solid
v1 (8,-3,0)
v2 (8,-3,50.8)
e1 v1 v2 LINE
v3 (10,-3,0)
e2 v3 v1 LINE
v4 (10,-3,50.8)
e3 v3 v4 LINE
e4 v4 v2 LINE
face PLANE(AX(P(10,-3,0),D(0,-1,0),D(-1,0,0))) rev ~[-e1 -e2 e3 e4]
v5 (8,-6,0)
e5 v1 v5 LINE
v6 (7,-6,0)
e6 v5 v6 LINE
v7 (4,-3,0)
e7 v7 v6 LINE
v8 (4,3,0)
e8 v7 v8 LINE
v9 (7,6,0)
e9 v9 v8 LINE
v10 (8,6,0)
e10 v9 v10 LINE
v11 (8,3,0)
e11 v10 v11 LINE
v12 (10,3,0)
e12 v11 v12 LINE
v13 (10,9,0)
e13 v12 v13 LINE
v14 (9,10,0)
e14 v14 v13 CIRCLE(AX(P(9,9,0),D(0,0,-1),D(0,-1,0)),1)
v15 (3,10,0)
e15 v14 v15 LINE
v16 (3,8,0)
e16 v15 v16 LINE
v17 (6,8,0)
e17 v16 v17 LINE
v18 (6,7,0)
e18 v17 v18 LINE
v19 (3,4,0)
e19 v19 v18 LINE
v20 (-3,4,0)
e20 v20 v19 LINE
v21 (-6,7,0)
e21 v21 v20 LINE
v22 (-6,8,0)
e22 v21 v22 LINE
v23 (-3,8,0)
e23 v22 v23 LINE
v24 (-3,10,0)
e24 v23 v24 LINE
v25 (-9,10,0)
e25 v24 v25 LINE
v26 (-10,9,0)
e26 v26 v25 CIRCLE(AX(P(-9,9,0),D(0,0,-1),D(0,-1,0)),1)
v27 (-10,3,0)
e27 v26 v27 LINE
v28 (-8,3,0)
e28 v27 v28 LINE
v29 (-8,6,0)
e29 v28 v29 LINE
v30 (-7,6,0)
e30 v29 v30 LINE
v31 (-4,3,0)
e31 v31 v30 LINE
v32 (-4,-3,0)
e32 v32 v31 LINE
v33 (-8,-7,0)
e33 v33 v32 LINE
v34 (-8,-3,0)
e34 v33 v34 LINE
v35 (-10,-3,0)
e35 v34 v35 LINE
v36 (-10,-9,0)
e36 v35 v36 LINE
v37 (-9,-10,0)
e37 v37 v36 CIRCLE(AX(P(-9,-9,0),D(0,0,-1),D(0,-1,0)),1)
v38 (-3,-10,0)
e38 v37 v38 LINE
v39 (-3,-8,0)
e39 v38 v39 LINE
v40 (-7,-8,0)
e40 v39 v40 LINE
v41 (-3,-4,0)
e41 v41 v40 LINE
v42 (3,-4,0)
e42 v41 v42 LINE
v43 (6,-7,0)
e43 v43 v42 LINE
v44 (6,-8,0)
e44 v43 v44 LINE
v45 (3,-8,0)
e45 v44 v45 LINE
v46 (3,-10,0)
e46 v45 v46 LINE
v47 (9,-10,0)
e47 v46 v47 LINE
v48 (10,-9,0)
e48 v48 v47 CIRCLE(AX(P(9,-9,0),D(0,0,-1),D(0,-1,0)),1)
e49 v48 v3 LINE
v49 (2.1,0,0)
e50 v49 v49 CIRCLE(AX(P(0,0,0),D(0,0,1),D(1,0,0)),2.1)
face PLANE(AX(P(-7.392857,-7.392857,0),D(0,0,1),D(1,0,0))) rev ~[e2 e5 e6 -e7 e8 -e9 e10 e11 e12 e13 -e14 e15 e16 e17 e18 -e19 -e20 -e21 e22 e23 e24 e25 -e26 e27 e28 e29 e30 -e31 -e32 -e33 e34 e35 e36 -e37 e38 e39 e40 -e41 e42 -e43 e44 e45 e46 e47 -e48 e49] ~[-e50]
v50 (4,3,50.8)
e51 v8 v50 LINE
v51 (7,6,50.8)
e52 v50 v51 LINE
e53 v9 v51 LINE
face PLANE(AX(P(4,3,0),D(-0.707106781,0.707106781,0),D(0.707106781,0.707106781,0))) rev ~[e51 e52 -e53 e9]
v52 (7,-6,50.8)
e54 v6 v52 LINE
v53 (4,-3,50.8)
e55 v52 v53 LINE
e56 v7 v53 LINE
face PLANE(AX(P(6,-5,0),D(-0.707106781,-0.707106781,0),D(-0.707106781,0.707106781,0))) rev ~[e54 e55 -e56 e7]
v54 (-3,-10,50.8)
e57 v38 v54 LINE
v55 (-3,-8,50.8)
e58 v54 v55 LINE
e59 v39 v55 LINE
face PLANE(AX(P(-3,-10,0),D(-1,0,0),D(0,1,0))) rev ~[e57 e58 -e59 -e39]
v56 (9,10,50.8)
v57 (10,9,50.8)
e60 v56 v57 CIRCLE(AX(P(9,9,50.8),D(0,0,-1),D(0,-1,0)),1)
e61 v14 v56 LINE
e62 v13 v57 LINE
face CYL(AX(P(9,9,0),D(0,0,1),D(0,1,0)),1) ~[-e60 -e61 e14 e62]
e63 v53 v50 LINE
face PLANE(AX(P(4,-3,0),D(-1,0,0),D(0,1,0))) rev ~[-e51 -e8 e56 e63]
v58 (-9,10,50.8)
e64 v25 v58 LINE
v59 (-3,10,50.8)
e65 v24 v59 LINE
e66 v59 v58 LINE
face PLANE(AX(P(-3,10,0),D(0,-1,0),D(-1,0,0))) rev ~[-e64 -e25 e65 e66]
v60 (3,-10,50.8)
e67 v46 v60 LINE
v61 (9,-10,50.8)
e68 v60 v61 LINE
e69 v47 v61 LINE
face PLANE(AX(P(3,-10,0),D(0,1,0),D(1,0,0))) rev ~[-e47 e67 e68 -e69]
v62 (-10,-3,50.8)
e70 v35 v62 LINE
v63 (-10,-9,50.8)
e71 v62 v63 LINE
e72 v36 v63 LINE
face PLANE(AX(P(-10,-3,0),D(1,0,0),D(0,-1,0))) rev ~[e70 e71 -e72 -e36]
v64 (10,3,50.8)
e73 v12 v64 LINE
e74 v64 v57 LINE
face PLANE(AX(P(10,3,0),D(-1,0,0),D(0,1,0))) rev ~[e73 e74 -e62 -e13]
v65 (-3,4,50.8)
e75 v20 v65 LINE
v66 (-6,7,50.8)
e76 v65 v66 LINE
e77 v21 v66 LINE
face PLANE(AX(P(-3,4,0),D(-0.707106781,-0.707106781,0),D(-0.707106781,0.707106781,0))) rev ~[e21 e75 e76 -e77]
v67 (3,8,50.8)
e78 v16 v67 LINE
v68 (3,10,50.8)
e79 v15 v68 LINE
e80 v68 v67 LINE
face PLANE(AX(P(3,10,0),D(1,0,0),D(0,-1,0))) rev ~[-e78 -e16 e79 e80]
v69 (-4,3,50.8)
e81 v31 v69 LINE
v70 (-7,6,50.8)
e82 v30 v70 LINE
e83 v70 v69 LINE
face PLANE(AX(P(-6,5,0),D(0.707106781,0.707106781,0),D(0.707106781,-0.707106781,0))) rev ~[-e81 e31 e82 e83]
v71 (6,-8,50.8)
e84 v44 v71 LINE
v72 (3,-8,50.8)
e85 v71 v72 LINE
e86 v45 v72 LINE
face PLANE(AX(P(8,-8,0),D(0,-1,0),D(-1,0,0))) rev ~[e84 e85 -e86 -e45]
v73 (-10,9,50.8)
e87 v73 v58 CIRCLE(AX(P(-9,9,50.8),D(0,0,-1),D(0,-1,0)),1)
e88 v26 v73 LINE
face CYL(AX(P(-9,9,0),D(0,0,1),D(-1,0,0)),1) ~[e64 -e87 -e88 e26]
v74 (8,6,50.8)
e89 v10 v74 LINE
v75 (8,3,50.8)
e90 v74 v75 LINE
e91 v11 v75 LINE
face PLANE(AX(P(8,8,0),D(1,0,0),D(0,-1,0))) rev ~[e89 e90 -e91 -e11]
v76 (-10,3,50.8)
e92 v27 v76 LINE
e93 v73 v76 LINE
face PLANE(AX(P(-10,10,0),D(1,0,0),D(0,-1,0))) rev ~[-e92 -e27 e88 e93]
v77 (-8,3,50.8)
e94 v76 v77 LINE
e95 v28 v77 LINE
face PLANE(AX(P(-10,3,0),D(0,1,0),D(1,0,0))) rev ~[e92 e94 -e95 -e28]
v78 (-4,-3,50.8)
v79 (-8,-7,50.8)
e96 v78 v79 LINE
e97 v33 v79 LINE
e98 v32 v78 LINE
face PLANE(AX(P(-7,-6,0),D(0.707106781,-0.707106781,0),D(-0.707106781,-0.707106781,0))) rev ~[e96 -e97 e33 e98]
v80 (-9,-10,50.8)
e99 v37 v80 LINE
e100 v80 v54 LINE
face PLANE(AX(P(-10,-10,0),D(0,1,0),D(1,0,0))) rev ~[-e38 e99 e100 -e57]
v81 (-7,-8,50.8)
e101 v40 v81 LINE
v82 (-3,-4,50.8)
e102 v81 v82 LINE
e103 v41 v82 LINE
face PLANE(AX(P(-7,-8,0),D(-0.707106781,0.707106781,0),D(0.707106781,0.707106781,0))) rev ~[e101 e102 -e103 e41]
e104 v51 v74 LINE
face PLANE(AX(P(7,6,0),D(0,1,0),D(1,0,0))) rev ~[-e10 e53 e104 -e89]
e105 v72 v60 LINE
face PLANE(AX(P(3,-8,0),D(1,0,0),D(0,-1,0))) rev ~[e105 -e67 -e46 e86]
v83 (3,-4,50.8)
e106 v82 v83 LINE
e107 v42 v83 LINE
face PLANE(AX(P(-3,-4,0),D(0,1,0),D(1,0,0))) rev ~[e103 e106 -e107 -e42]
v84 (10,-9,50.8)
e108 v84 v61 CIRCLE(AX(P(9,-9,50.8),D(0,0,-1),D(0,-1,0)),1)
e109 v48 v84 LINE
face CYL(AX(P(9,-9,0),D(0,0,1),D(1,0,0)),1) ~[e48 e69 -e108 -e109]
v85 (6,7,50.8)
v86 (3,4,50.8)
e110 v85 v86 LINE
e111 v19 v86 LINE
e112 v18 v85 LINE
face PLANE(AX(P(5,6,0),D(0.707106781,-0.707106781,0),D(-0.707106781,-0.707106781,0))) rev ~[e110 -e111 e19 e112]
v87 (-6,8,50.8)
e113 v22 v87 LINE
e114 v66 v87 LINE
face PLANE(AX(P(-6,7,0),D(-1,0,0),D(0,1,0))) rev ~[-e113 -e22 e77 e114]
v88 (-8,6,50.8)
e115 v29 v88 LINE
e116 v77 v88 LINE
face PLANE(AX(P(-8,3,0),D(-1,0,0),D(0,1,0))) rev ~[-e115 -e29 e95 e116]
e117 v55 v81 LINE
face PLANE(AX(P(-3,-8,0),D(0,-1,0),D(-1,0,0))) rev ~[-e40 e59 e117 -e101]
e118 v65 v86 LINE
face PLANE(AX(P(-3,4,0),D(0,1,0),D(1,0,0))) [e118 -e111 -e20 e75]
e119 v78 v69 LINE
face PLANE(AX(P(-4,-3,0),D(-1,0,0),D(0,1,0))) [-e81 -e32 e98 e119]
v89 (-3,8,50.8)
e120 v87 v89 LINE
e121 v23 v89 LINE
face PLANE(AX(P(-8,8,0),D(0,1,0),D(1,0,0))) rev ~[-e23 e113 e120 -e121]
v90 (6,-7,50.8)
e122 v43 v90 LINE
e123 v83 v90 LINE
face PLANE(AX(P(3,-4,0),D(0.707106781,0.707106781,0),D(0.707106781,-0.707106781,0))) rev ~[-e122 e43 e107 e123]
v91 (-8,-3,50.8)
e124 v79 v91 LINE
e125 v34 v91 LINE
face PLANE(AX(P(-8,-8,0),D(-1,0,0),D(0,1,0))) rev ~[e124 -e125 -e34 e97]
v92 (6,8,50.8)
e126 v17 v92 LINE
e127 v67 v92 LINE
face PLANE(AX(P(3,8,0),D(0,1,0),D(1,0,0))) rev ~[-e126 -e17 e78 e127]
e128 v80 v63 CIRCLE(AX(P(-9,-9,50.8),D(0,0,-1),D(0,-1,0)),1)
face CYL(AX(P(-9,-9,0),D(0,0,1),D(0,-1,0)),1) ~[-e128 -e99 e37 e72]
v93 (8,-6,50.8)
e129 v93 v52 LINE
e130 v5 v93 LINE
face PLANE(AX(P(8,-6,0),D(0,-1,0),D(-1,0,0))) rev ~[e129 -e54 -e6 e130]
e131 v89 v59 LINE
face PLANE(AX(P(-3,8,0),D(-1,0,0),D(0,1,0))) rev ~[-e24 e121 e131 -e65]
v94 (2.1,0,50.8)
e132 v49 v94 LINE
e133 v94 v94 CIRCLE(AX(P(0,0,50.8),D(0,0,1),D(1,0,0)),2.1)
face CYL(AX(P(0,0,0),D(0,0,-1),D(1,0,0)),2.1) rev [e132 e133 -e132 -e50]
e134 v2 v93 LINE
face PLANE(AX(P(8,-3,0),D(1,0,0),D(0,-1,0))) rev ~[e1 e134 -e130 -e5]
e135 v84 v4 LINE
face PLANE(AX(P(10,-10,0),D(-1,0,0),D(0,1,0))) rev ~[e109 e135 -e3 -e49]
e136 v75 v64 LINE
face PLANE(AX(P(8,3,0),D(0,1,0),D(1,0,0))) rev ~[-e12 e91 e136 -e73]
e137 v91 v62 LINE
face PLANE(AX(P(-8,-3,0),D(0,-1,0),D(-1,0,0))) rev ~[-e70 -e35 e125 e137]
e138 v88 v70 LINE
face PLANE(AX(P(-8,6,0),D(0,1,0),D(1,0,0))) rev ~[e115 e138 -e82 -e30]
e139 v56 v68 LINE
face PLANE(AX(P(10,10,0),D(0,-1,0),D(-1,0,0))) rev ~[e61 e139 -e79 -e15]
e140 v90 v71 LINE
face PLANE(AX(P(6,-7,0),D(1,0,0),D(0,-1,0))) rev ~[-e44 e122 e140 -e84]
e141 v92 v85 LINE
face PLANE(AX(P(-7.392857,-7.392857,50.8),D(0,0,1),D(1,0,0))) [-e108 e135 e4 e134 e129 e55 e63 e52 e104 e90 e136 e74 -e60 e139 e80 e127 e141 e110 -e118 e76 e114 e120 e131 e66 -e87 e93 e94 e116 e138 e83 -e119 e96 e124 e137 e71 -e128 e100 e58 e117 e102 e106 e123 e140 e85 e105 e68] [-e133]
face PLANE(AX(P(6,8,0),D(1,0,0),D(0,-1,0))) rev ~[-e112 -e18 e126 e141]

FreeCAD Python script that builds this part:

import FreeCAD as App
import Part
import Sketcher
Q = App.Units.Quantity


def edges_at(feature, points):
    """Names of the edges that pass closest to the given points."""
    edges = feature.Shape.Edges
    near = lambda p: min(range(len(edges)), key=lambda i: edges[i].distToShape(Part.Vertex(*p))[0])
    return sorted({f"Edge{near(p) + 1}" for p in points})

doc = App.newDocument("Part")
body = doc.addObject("PartDesign::Body", "Body")

sketch1 = doc.addObject("Sketcher::SketchObject", "Sketch")
body.addObject(sketch1)
sketch1.AttachmentSupport = (doc.XY_Plane, [""])
sketch1.MapMode = "FlatFace"
sketch1.addGeometry(Part.LineSegment(App.Vector(-6, 7, 0), App.Vector(-6, 8, 0)), False)
sketch1.addGeometry(Part.LineSegment(App.Vector(-6, 8, 0), App.Vector(-3, 8, 0)), False)
sketch1.addGeometry(Part.LineSegment(App.Vector(-3, 8, 0), App.Vector(-3, 10, 0)), False)
sketch1.addGeometry(Part.LineSegment(App.Vector(-3, 10, 0), App.Vector(-10, 10, 0)), False)
sketch1.addGeometry(Part.LineSegment(App.Vector(-10, 10, 0), App.Vector(-10, 3, 0)), False)
sketch1.addGeometry(Part.LineSegment(App.Vector(-10, 3, 0), App.Vector(-8, 3, 0)), False)
sketch1.addGeometry(Part.LineSegment(App.Vector(-8, 3, 0), App.Vector(-8, 6, 0)), False)
sketch1.addGeometry(Part.LineSegment(App.Vector(-8, 6, 0), App.Vector(-7, 6, 0)), False)
sketch1.addGeometry(Part.LineSegment(App.Vector(-7, 6, 0), App.Vector(-4, 3, 0)), False)
sketch1.addGeometry(Part.LineSegment(App.Vector(-4, 3, 0), App.Vector(-4, -3, 0)), False)
sketch1.addGeometry(Part.LineSegment(App.Vector(-4, -3, 0), App.Vector(-8, -7, 0)), False)
sketch1.addGeometry(Part.LineSegment(App.Vector(-8, -7, 0), App.Vector(-8, -3, 0)), False)
sketch1.addGeometry(Part.LineSegment(App.Vector(-8, -3, 0), App.Vector(-10, -3, 0)), False)
sketch1.addGeometry(Part.LineSegment(App.Vector(-10, -3, 0), App.Vector(-10, -10, 0)), False)
sketch1.addGeometry(Part.LineSegment(App.Vector(-10, -10, 0), App.Vector(-3, -10, 0)), False)
sketch1.addGeometry(Part.LineSegment(App.Vector(-3, -10, 0), App.Vector(-3, -8, 0)), False)
sketch1.addGeometry(Part.LineSegment(App.Vector(-3, -8, 0), App.Vector(-7, -8, 0)), False)
sketch1.addGeometry(Part.LineSegment(App.Vector(-7, -8, 0), App.Vector(-3, -4, 0)), False)
sketch1.addGeometry(Part.LineSegment(App.Vector(-3, -4, 0), App.Vector(3, -4, 0)), False)
sketch1.addGeometry(Part.LineSegment(App.Vector(3, -4, 0), App.Vector(6, -7, 0)), False)
sketch1.addGeometry(Part.LineSegment(App.Vector(6, -7, 0), App.Vector(6, -8, 0)), False)
sketch1.addGeometry(Part.LineSegment(App.Vector(6, -8, 0), App.Vector(3, -8, 0)), False)
sketch1.addGeometry(Part.LineSegment(App.Vector(3, -8, 0), App.Vector(3, -10, 0)), False)
sketch1.addGeometry(Part.LineSegment(App.Vector(3, -10, 0), App.Vector(10, -10, 0)), False)
sketch1.addGeometry(Part.LineSegment(App.Vector(10, -10, 0), App.Vector(10, -3, 0)), False)
sketch1.addGeometry(Part.LineSegment(App.Vector(10, -3, 0), App.Vector(8, -3, 0)), False)
sketch1.addGeometry(Part.LineSegment(App.Vector(8, -3, 0), App.Vector(8, -6, 0)), False)
sketch1.addGeometry(Part.LineSegment(App.Vector(8, -6, 0), App.Vector(7, -6, 0)), False)
sketch1.addGeometry(Part.LineSegment(App.Vector(7, -6, 0), App.Vector(4, -3, 0)), False)
sketch1.addGeometry(Part.LineSegment(App.Vector(4, -3, 0), App.Vector(4, 3, 0)), False)
sketch1.addGeometry(Part.LineSegment(App.Vector(4, 3, 0), App.Vector(7, 6, 0)), False)
sketch1.addGeometry(Part.LineSegment(App.Vector(7, 6, 0), App.Vector(8, 6, 0)), False)
sketch1.addGeometry(Part.LineSegment(App.Vector(8, 6, 0), App.Vector(8, 3, 0)), False)
sketch1.addGeometry(Part.LineSegment(App.Vector(8, 3, 0), App.Vector(10, 3, 0)), False)
sketch1.addGeometry(Part.LineSegment(App.Vector(10, 3, 0), App.Vector(10, 10, 0)), False)
sketch1.addGeometry(Part.LineSegment(App.Vector(10, 10, 0), App.Vector(3, 10, 0)), False)
sketch1.addGeometry(Part.LineSegment(App.Vector(3, 10, 0), App.Vector(3, 8, 0)), False)
sketch1.addGeometry(Part.LineSegment(App.Vector(3, 8, 0), App.Vector(6, 8, 0)), False)
sketch1.addGeometry(Part.LineSegment(App.Vector(6, 8, 0), App.Vector(6, 7, 0)), False)
sketch1.addGeometry(Part.LineSegment(App.Vector(6, 7, 0), App.Vector(3, 4, 0)), False)
sketch1.addGeometry(Part.LineSegment(App.Vector(3, 4, 0), App.Vector(-3, 4, 0)), False)
sketch1.addGeometry(Part.LineSegment(App.Vector(-3, 4, 0), App.Vector(-6, 7, 0)), False)
sketch1.addGeometry(Part.Circle(App.Vector(0, 0, 0), App.Vector(0, 0, 1), 2.1), False)
sketch1.addConstraint(Sketcher.Constraint("Coincident", 0, 2, 1, 1))
sketch1.addConstraint(Sketcher.Constraint("Coincident", 1, 2, 2, 1))
sketch1.addConstraint(Sketcher.Constraint("Coincident", 2, 2, 3, 1))
sketch1.addConstraint(Sketcher.Constraint("Coincident", 3, 2, 4, 1))
sketch1.addConstraint(Sketcher.Constraint("Coincident", 4, 2, 5, 1))
sketch1.addConstraint(Sketcher.Constraint("Coincident", 5, 2, 6, 1))
sketch1.addConstraint(Sketcher.Constraint("Coincident", 6, 2, 7, 1))
sketch1.addConstraint(Sketcher.Constraint("Coincident", 7, 2, 8, 1))
sketch1.addConstraint(Sketcher.Constraint("Coincident", 8, 2, 9, 1))
sketch1.addConstraint(Sketcher.Constraint("Coincident", 9, 2, 10, 1))
sketch1.addConstraint(Sketcher.Constraint("Coincident", 10, 2, 11, 1))
sketch1.addConstraint(Sketcher.Constraint("Coincident", 11, 2, 12, 1))
sketch1.addConstraint(Sketcher.Constraint("Coincident", 12, 2, 13, 1))
sketch1.addConstraint(Sketcher.Constraint("Coincident", 13, 2, 14, 1))
sketch1.addConstraint(Sketcher.Constraint("Coincident", 14, 2, 15, 1))
sketch1.addConstraint(Sketcher.Constraint("Coincident", 15, 2, 16, 1))
sketch1.addConstraint(Sketcher.Constraint("Coincident", 16, 2, 17, 1))
sketch1.addConstraint(Sketcher.Constraint("Coincident", 17, 2, 18, 1))
sketch1.addConstraint(Sketcher.Constraint("Coincident", 18, 2, 19, 1))
sketch1.addConstraint(Sketcher.Constraint("Coincident", 19, 2, 20, 1))
sketch1.addConstraint(Sketcher.Constraint("Coincident", 20, 2, 21, 1))
sketch1.addConstraint(Sketcher.Constraint("Coincident", 21, 2, 22, 1))
sketch1.addConstraint(Sketcher.Constraint("Coincident", 22, 2, 23, 1))
sketch1.addConstraint(Sketcher.Constraint("Coincident", 23, 2, 24, 1))
sketch1.addConstraint(Sketcher.Constraint("Coincident", 24, 2, 25, 1))
sketch1.addConstraint(Sketcher.Constraint("Coincident", 25, 2, 26, 1))
sketch1.addConstraint(Sketcher.Constraint("Coincident", 26, 2, 27, 1))
sketch1.addConstraint(Sketcher.Constraint("Coincident", 27, 2, 28, 1))
sketch1.addConstraint(Sketcher.Constraint("Coincident", 28, 2, 29, 1))
sketch1.addConstraint(Sketcher.Constraint("Coincident", 29, 2, 30, 1))
sketch1.addConstraint(Sketcher.Constraint("Coincident", 30, 2, 31, 1))
sketch1.addConstraint(Sketcher.Constraint("Coincident", 31, 2, 32, 1))
sketch1.addConstraint(Sketcher.Constraint("Coincident", 32, 2, 33, 1))
sketch1.addConstraint(Sketcher.Constraint("Coincident", 33, 2, 34, 1))
sketch1.addConstraint(Sketcher.Constraint("Coincident", 34, 2, 35, 1))
sketch1.addConstraint(Sketcher.Constraint("Coincident", 35, 2, 36, 1))
sketch1.addConstraint(Sketcher.Constraint("Coincident", 36, 2, 37, 1))
sketch1.addConstraint(Sketcher.Constraint("Coincident", 37, 2, 38, 1))
sketch1.addConstraint(Sketcher.Constraint("Coincident", 38, 2, 39, 1))
sketch1.addConstraint(Sketcher.Constraint("Coincident", 39, 2, 40, 1))
sketch1.addConstraint(Sketcher.Constraint("Coincident", 40, 2, 41, 1))
sketch1.addConstraint(Sketcher.Constraint("Coincident", 41, 2, 0, 1))
sketch1.addConstraint(Sketcher.Constraint("Vertical", 0))
sketch1.addConstraint(Sketcher.Constraint("Horizontal", 1))
sketch1.addConstraint(Sketcher.Constraint("Vertical", 2))
sketch1.addConstraint(Sketcher.Constraint("Horizontal", 3))
sketch1.addConstraint(Sketcher.Constraint("Vertical", 4))
sketch1.addConstraint(Sketcher.Constraint("Horizontal", 5))
sketch1.addConstraint(Sketcher.Constraint("Vertical", 6))
sketch1.addConstraint(Sketcher.Constraint("Horizontal", 7))
sketch1.addConstraint(Sketcher.Constraint("Vertical", 9))
sketch1.addConstraint(Sketcher.Constraint("Vertical", 11))
sketch1.addConstraint(Sketcher.Constraint("Horizontal", 12))
sketch1.addConstraint(Sketcher.Constraint("Vertical", 13))
sketch1.addConstraint(Sketcher.Constraint("Horizontal", 14))
sketch1.addConstraint(Sketcher.Constraint("Vertical", 15))
sketch1.addConstraint(Sketcher.Constraint("Horizontal", 16))
sketch1.addConstraint(Sketcher.Constraint("Horizontal", 18))
sketch1.addConstraint(Sketcher.Constraint("Vertical", 20))
sketch1.addConstraint(Sketcher.Constraint("Horizontal", 21))
sketch1.addConstraint(Sketcher.Constraint("Vertical", 22))
sketch1.addConstraint(Sketcher.Constraint("Horizontal", 23))
sketch1.addConstraint(Sketcher.Constraint("Vertical", 24))
sketch1.addConstraint(Sketcher.Constraint("Horizontal", 25))
sketch1.addConstraint(Sketcher.Constraint("Vertical", 26))
sketch1.addConstraint(Sketcher.Constraint("Horizontal", 27))
sketch1.addConstraint(Sketcher.Constraint("Vertical", 29))
sketch1.addConstraint(Sketcher.Constraint("Horizontal", 31))
sketch1.addConstraint(Sketcher.Constraint("Vertical", 32))
sketch1.addConstraint(Sketcher.Constraint("Horizontal", 33))
sketch1.addConstraint(Sketcher.Constraint("Vertical", 34))
sketch1.addConstraint(Sketcher.Constraint("Horizontal", 35))
sketch1.addConstraint(Sketcher.Constraint("Vertical", 36))
sketch1.addConstraint(Sketcher.Constraint("Horizontal", 37))
sketch1.addConstraint(Sketcher.Constraint("Vertical", 38))
sketch1.addConstraint(Sketcher.Constraint("Horizontal", 40))
sketch1.addConstraint(Sketcher.Constraint("Coincident", 42, 3, -1, 1))
sketch1.addConstraint(Sketcher.Constraint("Symmetric", 0, 2, 20, 2, -1, 1))
sketch1.addConstraint(Sketcher.Constraint("Symmetric", 2, 2, 22, 2, -1, 1))
sketch1.addConstraint(Sketcher.Constraint("Symmetric", 4, 2, 24, 2, -1, 1))
sketch1.addConstraint(Sketcher.Constraint("Symmetric", 6, 2, 26, 2, -1, 1))
sketch1.addConstraint(Sketcher.Constraint("Symmetric", 8, 2, 28, 2, -1, 1))
sketch1.addConstraint(Sketcher.Constraint("Symmetric", 11, 2, 32, 2, -1, 1))
sketch1.addConstraint(Sketcher.Constraint("Symmetric", 13, 2, 34, 2, -1, 1))
sketch1.addConstraint(Sketcher.Constraint("Symmetric", 15, 2, 36, 2, -1, 1))
sketch1.addConstraint(Sketcher.Constraint("Symmetric", 17, 2, 39, 2, -1, 1))
sketch1.addConstraint(Sketcher.Constraint("Symmetric", 15, 2, 21, 2, -2))
sketch1.addConstraint(Sketcher.Constraint("Symmetric", 13, 2, 23, 2, -2))
sketch1.addConstraint(Sketcher.Constraint("Symmetric", 11, 2, 25, 2, -2))
sketch1.addConstraint(Sketcher.Constraint("Symmetric", 7, 2, 30, 2, -2))
sketch1.addConstraint(Sketcher.Constraint("Symmetric", 38, 2, 41, 2, -2))
sketch1.addConstraint(Sketcher.Constraint("Perpendicular", 8, 10))
sketch1.addConstraint(Sketcher.Constraint("Parallel", 10, 17))
sketch1.addConstraint(Sketcher.Constraint("Perpendicular", 17, 19))
sketch1.addConstraint(Sketcher.Constraint("Parallel", 19, 28))
sketch1.addConstraint(Sketcher.Constraint("Perpendicular", 28, 30))
sketch1.addConstraint(Sketcher.Constraint("Parallel", 30, 39))
sketch1.addConstraint(Sketcher.Constraint("Perpendicular", 39, 41))
sketch1.addConstraint(Sketcher.Constraint("Horizontal", 5, 2, 8, 2))
sketch1.addConstraint(Sketcher.Constraint("Horizontal", 9, 2, 11, 2))
sketch1.addConstraint(Sketcher.Constraint("Horizontal", 10, 2, 19, 2))
sketch1.addConstraint(Sketcher.Constraint("Horizontal", 8, 2, 29, 2))
sketch1.addConstraint(Sketcher.Constraint("Vertical", 7, 2, 16, 2))
sketch1.addConstraint(Sketcher.Constraint("Vertical", 15, 2, 17, 2))
sketch1.addConstraint(Sketcher.Constraint("Vertical", 18, 2, 21, 2))
sketch1.addConstraint(Sketcher.Constraint("Equal", 31, 0))
sketch1.addConstraint(Sketcher.Constraint("Equal", 33, 2))
sketch1.addConstraint(Sketcher.Constraint("Equal", 35, 4))
sketch1.addConstraint(Sketcher.Constraint("Equal", 40, 9))
sketch1.addConstraint(Sketcher.Constraint("Diameter", 42, Q("4.2 mm")))
sketch1.addConstraint(Sketcher.Constraint("DistanceX", 1, 1, 1, 2, Q("3 mm")))
sketch1.addConstraint(Sketcher.Constraint("DistanceX", 3, 2, 3, 1, Q("7 mm")))
sketch1.addConstraint(Sketcher.Constraint("DistanceX", 5, 1, 5, 2, Q("2 mm")))
sketch1.addConstraint(Sketcher.Constraint("DistanceX", 18, 1, 18, 2, Q("6 mm")))
pad1 = doc.addObject("PartDesign::Pad", "Pad")
body.addObject(pad1)
pad1.Profile = sketch1
pad1.Length = 50.8
doc.recompute()

fillet = doc.addObject("PartDesign::Fillet", "Fillet")
body.addObject(fillet)
fillet.Base = (pad1, edges_at(pad1, [
    (-10, -10, 25.4),
    (-10, 10, 25.4),
    (10, 10, 25.4),
    (10, -10, 25.4),
]))
fillet.Radius = 1

doc.recompute()
